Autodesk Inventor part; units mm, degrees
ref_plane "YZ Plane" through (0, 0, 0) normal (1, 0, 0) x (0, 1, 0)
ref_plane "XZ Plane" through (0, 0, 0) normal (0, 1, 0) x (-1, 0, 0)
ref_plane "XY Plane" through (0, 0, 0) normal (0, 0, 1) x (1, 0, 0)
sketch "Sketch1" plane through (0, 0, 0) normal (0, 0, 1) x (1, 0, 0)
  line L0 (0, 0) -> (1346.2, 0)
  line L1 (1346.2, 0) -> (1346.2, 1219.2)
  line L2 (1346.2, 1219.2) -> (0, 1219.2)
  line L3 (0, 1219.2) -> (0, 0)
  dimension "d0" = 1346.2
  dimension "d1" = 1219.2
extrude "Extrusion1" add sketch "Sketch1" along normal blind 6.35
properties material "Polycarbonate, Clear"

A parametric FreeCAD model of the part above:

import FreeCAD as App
import Part
import Sketcher
Q = App.Units.Quantity


def add_polygon(sketch, points):
    """Adds a closed chain of lines whose ends are joined by coincident constraints."""
    first, n = sketch.GeometryCount, len(points)
    for a, b in zip(points, points[1:] + points[:1]):
        sketch.addGeometry(Part.LineSegment(App.Vector(*a, 0), App.Vector(*b, 0)), False)
    for i in range(n):
        sketch.addConstraint(Sketcher.Constraint("Coincident", first + i, 2, first + (i + 1) % n, 1))

doc = App.newDocument("Part")
body = doc.addObject("PartDesign::Body", "Body")

# Sketch on XY plane
sketch1 = body.newObject("Sketcher::SketchObject", "Sketch")
sketch1.AttachmentSupport = (doc.getObject("XY_Plane"), [""])
sketch1.MapMode = "FlatFace"
add_polygon(sketch1, [(0, 1219.2), (0, 0), (1346.2, 0), (1346.2, 1219.2)])  # lines 0-3
sketch1.addConstraint([
    Sketcher.Constraint("Vertical", 0),
    Sketcher.Constraint("Horizontal", 1),
    Sketcher.Constraint("Vertical", 2),
    Sketcher.Constraint("Horizontal", 3),
    Sketcher.Constraint("Coincident", 0, 2, -1, 1),
    Sketcher.Constraint("DistanceX", 1, 1, 1, 2, Q("53 in")),
    Sketcher.Constraint("DistanceY", 0, 2, 0, 1, Q("48 in")),
])
pad1 = body.newObject("PartDesign::Pad", "Pad")
pad1.Profile = sketch1
pad1.Length = Q("0.25 in")

doc.recompute()
